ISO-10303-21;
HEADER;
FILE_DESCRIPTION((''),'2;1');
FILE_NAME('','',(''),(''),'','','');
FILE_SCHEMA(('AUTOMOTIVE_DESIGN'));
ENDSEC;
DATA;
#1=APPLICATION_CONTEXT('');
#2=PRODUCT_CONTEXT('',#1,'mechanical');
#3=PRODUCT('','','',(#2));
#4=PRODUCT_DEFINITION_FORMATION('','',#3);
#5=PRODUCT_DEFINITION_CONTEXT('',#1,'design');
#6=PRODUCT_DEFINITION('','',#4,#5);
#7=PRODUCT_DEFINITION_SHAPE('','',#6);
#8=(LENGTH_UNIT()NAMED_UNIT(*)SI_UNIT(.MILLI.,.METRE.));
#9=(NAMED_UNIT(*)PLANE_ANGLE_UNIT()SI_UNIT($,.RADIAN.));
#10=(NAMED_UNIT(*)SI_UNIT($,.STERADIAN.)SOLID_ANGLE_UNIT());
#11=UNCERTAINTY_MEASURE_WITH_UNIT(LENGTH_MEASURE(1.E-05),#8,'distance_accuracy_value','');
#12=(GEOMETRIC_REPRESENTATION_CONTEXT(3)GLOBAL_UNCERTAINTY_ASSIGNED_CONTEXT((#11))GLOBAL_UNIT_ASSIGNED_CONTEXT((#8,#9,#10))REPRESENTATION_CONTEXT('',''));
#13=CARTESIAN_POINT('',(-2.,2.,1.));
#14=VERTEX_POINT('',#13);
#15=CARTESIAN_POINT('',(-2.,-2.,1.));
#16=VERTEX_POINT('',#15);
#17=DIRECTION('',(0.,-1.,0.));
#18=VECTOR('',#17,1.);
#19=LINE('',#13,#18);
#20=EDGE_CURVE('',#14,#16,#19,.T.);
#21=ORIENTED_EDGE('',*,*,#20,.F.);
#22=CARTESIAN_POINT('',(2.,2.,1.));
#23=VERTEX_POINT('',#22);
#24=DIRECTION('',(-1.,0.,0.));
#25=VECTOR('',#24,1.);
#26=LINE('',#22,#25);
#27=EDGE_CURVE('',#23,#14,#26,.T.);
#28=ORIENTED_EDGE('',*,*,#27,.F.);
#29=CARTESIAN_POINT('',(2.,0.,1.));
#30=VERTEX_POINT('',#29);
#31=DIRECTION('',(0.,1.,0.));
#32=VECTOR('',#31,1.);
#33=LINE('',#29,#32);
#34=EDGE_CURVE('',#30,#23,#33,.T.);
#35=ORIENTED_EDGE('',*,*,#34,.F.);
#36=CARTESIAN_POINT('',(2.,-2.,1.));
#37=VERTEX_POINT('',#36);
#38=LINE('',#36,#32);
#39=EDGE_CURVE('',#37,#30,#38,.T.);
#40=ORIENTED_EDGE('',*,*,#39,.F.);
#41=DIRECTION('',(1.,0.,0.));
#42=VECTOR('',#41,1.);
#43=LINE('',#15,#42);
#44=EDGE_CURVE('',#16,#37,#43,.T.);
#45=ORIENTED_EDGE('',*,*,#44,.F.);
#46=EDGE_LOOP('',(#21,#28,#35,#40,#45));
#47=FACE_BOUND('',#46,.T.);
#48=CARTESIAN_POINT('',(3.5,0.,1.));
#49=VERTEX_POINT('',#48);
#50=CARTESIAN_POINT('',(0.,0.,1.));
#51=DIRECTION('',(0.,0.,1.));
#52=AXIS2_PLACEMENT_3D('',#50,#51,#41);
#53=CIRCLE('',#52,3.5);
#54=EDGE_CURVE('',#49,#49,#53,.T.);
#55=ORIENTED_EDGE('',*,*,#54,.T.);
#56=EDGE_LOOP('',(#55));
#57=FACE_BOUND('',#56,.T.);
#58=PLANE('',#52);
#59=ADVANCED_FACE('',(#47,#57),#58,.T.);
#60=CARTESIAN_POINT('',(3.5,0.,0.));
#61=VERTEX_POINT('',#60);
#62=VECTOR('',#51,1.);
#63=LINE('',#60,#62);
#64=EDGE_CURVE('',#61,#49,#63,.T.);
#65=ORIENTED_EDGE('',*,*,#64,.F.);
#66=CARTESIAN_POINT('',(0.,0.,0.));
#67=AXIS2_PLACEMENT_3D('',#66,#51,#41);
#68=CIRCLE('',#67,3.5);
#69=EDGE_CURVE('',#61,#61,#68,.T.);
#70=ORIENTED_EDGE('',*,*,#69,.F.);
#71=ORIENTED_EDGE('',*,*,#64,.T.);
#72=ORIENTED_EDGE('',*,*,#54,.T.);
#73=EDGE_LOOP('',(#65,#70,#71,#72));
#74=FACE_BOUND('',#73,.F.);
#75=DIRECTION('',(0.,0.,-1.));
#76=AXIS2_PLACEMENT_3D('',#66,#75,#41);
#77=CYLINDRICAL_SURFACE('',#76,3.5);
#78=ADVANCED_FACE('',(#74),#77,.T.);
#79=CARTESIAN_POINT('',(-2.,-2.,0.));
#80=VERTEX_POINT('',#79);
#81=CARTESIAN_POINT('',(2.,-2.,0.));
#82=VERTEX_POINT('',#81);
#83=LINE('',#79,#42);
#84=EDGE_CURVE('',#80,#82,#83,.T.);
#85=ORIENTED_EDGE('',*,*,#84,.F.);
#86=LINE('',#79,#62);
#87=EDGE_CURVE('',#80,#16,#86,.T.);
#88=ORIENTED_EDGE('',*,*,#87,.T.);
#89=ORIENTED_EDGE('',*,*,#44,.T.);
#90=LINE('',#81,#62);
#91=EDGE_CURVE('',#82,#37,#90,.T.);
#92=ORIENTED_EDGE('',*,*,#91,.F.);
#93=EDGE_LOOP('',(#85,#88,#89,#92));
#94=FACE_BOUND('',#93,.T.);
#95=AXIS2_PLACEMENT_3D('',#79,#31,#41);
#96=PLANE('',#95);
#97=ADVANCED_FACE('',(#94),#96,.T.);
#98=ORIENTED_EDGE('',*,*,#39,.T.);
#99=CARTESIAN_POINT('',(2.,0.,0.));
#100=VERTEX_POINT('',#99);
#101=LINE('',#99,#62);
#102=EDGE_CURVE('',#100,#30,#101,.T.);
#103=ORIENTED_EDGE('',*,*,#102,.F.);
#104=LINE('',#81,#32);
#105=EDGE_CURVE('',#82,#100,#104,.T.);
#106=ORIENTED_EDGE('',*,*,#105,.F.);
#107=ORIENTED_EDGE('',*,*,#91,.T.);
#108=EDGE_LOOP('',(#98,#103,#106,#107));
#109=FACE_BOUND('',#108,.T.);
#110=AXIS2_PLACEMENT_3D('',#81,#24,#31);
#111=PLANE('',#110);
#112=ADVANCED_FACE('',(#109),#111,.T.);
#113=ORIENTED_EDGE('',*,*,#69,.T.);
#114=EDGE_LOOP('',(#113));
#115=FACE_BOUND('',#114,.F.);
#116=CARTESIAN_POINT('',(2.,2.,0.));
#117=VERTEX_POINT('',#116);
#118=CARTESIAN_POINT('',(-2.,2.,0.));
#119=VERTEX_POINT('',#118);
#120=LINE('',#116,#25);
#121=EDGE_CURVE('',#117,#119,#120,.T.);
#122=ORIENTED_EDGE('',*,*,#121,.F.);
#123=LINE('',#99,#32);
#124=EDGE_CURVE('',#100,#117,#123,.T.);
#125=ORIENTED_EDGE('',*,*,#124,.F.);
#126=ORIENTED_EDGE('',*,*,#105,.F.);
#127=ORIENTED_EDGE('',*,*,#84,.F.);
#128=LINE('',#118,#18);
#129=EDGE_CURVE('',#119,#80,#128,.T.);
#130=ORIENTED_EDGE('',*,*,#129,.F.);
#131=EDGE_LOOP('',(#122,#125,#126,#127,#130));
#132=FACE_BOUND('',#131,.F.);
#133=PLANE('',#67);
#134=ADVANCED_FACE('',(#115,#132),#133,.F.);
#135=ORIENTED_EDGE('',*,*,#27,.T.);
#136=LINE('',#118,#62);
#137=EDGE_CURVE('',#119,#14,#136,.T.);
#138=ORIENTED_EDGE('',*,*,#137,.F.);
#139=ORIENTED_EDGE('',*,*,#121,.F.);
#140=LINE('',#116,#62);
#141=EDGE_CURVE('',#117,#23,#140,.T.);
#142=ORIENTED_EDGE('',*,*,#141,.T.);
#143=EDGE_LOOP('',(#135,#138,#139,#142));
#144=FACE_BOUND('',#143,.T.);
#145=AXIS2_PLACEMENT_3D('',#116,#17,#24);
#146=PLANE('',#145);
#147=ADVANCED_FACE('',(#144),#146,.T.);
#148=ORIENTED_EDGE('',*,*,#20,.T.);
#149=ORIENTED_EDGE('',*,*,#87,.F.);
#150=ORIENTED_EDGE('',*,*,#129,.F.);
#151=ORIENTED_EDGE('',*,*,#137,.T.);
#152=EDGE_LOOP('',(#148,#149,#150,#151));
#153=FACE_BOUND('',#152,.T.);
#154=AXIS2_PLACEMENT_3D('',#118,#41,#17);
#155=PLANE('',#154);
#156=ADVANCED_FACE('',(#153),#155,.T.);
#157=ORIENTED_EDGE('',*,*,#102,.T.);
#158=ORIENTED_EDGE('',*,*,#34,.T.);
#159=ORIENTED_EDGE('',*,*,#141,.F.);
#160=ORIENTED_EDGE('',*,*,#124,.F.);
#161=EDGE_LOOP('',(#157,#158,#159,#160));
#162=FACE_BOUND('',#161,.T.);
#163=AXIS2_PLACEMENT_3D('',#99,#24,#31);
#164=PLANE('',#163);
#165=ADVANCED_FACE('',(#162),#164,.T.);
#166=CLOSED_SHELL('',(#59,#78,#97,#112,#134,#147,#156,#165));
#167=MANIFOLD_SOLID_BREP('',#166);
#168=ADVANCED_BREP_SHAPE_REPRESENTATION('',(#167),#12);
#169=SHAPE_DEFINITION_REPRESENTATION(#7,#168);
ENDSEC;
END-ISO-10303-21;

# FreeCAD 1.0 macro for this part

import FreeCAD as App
import Part
import Sketcher

V = App.Vector

doc = App.newDocument("Part")
params = doc.addObject("Spreadsheet::Sheet", "Params")
for row, (alias, value) in enumerate([
    ("sketch1_diameter", "7 mm"),
    ("sketch1_width", "4 mm"),
    ("pad1_length", "1 mm"),
], start=1):
    params.set(f"A{row}", alias)
    params.set(f"B{row}", "=" + value)
    params.setAlias(f"B{row}", alias)

body = doc.addObject("PartDesign::Body", "Body")

# Sketch on XY plane
sketch1 = body.newObject("Sketcher::SketchObject", "Sketch")
sketch1.AttachmentSupport = (doc.getObject("XY_Plane"), [""])
sketch1.MapMode = "FlatFace"
sketch1.addGeometry([
    Part.Circle(V(0, 0, 0), V(0, 0, 1), 3.5),  # 0
    Part.LineSegment(V(2, 2, 0), V(2, -2, 0)),  # 1
    Part.LineSegment(V(2, -2, 0), V(-2, -2, 0)),  # 2
    Part.LineSegment(V(-2, -2, 0), V(-2, 2, 0)),  # 3
    Part.LineSegment(V(-2, 2, 0), V(2, 2, 0)),  # 4
], False)
sketch1.addConstraint([
    Sketcher.Constraint("Coincident", 1, 2, 2, 1),
    Sketcher.Constraint("Coincident", 2, 2, 3, 1),
    Sketcher.Constraint("Coincident", 3, 2, 4, 1),
    Sketcher.Constraint("Coincident", 4, 2, 1, 1),
    Sketcher.Constraint("Vertical", 1),
    Sketcher.Constraint("Horizontal", 2),
    Sketcher.Constraint("Vertical", 3),
    Sketcher.Constraint("Horizontal", 4),
    Sketcher.Constraint("Coincident", 0, 3, -1, 1),
    Sketcher.Constraint("Symmetric", 1, 2, 3, 2, -1, 1),
    Sketcher.Constraint("Equal", 4, 1),
    Sketcher.Constraint("Diameter", 0, 7.0),
    Sketcher.Constraint("DistanceX", 2, 2, 2, 1, 4.0),
])
sketch1.setExpression("Constraints[11]", "Params.sketch1_diameter")
sketch1.setExpression("Constraints[12]", "Params.sketch1_width")
pad1 = body.newObject("PartDesign::Pad", "Pad")
pad1.Profile = sketch1
pad1.setExpression("Length", "Params.pad1_length")

doc.recompute()
